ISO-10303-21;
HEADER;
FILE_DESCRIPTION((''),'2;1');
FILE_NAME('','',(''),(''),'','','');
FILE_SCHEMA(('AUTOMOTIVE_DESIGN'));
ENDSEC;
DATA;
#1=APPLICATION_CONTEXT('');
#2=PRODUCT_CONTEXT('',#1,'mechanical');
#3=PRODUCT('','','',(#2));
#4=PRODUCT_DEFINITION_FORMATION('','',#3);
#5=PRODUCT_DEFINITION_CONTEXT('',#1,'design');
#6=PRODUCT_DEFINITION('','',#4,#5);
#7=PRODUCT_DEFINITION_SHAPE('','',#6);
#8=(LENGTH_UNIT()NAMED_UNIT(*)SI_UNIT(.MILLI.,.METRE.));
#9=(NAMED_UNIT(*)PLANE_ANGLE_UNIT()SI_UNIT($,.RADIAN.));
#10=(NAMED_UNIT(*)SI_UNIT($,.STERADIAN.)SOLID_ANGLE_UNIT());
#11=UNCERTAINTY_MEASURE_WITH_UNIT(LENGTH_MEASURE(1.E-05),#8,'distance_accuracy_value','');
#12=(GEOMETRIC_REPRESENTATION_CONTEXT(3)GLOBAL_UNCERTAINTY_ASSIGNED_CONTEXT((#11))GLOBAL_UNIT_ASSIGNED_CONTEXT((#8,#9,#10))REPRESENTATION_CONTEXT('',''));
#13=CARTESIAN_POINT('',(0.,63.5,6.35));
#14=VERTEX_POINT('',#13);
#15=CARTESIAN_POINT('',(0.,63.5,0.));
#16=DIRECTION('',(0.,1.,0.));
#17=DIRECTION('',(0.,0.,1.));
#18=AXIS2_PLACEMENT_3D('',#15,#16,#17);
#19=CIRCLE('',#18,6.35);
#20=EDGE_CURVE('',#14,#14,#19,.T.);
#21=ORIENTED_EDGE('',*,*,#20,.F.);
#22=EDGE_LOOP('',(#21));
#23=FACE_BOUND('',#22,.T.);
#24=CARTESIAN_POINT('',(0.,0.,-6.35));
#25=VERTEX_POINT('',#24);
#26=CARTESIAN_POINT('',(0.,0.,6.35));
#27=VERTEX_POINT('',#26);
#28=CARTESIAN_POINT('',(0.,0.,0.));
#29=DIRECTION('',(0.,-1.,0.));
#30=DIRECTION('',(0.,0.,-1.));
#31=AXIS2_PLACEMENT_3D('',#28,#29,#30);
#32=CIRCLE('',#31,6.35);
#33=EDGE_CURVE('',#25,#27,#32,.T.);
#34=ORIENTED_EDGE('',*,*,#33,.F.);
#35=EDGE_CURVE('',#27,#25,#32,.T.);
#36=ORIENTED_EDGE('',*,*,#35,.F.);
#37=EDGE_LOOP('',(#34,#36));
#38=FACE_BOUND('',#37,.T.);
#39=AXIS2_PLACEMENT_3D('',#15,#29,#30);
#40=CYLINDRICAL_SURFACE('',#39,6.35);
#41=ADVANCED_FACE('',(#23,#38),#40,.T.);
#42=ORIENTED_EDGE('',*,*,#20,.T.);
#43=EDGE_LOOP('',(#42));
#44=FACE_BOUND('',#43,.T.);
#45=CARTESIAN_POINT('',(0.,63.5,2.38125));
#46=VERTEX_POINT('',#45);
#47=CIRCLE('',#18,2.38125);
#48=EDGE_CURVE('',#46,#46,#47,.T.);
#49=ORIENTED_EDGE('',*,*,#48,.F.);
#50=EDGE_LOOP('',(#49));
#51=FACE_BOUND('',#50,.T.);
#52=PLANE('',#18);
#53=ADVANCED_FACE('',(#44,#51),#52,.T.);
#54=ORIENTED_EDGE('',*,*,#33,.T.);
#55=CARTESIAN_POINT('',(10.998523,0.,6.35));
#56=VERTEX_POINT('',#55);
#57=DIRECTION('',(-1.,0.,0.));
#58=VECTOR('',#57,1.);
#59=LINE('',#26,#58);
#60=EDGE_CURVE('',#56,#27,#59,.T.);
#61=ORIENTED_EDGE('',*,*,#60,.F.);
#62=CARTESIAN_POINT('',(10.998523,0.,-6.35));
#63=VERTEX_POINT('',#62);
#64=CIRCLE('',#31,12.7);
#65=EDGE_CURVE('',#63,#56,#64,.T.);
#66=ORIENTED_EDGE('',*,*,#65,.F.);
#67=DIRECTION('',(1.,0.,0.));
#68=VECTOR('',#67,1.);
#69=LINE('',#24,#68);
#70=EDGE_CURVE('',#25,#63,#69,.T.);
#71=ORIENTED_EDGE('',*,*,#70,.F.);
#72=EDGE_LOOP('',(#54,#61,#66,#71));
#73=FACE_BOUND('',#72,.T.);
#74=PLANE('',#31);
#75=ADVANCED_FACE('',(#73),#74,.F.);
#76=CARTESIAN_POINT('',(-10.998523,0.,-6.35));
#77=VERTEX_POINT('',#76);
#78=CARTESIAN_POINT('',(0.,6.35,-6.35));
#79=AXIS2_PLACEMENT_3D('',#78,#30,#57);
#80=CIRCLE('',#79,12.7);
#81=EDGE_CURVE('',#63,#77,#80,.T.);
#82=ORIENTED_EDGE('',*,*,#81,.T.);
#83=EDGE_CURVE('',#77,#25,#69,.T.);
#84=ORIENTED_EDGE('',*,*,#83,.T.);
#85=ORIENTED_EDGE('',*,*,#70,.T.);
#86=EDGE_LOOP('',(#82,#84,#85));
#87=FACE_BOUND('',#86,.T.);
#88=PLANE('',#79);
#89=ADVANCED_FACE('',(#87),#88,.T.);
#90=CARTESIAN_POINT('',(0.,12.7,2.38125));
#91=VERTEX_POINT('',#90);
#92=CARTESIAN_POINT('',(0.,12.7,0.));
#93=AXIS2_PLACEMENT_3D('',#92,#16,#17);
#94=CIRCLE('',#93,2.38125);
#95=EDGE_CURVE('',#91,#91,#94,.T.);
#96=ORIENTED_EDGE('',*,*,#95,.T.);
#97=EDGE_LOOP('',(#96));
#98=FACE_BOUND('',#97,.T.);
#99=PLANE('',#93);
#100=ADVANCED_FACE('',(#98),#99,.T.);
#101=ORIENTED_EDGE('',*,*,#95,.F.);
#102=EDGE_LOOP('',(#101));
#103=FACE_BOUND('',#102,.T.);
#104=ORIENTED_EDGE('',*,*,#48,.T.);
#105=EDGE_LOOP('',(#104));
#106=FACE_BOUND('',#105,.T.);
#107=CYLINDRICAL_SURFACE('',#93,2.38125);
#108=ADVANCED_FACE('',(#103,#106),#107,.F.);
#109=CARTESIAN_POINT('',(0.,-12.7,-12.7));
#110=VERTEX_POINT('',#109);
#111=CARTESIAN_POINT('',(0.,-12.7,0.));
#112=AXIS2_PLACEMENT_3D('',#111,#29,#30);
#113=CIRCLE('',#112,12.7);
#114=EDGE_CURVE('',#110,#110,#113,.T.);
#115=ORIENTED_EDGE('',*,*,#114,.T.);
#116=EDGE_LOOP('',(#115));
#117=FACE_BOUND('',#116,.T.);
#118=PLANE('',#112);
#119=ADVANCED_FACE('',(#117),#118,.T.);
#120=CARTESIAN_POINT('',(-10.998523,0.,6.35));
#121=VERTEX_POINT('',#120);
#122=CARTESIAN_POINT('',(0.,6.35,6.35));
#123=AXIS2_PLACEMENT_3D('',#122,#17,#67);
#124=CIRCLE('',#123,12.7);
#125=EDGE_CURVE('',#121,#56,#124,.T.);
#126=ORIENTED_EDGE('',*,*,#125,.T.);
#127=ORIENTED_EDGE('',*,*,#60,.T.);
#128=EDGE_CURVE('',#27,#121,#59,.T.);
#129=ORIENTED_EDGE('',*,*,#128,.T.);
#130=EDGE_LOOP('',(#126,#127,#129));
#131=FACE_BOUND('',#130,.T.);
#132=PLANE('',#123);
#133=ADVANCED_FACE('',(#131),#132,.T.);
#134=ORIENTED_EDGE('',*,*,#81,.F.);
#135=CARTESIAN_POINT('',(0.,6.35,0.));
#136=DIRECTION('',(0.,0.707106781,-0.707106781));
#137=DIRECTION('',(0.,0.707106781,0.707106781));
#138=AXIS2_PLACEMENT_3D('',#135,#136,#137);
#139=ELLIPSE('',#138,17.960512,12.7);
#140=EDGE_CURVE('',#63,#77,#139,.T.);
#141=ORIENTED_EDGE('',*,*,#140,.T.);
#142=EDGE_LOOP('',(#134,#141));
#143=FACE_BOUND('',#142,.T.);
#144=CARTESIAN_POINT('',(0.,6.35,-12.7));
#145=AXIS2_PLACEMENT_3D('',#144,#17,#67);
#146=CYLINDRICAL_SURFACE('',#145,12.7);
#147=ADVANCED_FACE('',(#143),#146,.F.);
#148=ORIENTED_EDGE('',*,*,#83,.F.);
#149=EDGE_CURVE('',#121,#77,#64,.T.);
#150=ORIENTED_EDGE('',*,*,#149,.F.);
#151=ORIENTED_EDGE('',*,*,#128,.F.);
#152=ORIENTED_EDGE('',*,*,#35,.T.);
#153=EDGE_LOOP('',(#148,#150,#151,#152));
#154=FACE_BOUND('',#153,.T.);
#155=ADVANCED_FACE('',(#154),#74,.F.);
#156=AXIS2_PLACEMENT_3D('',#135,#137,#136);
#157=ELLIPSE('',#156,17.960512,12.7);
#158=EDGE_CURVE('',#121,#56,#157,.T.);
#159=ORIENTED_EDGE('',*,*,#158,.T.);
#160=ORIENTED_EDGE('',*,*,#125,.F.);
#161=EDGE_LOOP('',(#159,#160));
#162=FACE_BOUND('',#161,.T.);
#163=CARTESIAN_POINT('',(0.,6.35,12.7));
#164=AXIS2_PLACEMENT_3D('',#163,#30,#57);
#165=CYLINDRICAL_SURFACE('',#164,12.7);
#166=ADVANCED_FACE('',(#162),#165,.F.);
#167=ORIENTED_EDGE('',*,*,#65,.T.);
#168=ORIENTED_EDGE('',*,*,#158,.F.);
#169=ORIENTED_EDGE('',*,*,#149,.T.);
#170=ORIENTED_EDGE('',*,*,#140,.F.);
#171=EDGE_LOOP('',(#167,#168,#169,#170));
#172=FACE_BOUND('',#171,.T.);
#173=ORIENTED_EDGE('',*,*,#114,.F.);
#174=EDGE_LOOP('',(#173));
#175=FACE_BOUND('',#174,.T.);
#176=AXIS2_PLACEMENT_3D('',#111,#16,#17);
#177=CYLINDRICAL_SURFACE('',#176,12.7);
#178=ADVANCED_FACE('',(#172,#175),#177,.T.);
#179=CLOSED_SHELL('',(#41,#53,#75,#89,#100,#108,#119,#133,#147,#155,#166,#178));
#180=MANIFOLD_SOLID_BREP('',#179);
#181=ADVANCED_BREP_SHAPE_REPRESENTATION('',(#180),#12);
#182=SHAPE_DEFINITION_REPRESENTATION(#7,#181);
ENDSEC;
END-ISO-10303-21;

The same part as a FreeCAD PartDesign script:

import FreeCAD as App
import Part
import Sketcher
Q = App.Units.Quantity

doc = App.newDocument("Part")
body = doc.addObject("PartDesign::Body", "Body")

sketch1 = doc.addObject("Sketcher::SketchObject", "Sketch")
body.addObject(sketch1)
sketch1.AttachmentSupport = (doc.XZ_Plane, [""])
sketch1.MapMode = "FlatFace"
sketch1.addGeometry(Part.Circle(App.Vector(0, 0, 0), App.Vector(0, 0, 1), 6), False)
sketch1.addConstraint(Sketcher.Constraint("Coincident", 0, 3, -1, 1))
sketch1.addConstraint(Sketcher.Constraint("Diameter", 0, Q("0.5 in")))
pad1 = doc.addObject("PartDesign::Pad", "Pad")
body.addObject(pad1)
pad1.Profile = sketch1
pad1.Length = Q("2.5 in")
pad1.Reversed = True

sketch2 = doc.addObject("Sketcher::SketchObject", "Sketch001")
body.addObject(sketch2)
sketch2.AttachmentSupport = (doc.XZ_Plane, [""])
sketch2.MapMode = "FlatFace"
sketch2.addGeometry(Part.Circle(App.Vector(0, 0, 0), App.Vector(0, 0, 1), 13), False)
sketch2.addConstraint(Sketcher.Constraint("Coincident", 0, 3, -1, 1))
sketch2.addConstraint(Sketcher.Constraint("Diameter", 0, Q("1 in")))
pad2 = doc.addObject("PartDesign::Pad", "Pad001")
body.addObject(pad2)
pad2.Profile = sketch2
pad2.Length = Q("0.5 in")

sketch3 = doc.addObject("Sketcher::SketchObject", "Sketch002")
body.addObject(sketch3)
sketch3.AttachmentSupport = (doc.XY_Plane, [""])
sketch3.MapMode = "FlatFace"
sketch3.AttachmentOffset = App.Placement(App.Vector(0, 0, 0.25 * 25.4), App.Rotation())
sketch3.addGeometry(Part.Circle(App.Vector(0, 6, 0), App.Vector(0, 0, 1), 13), False)
sketch3.addConstraint(Sketcher.Constraint("PointOnObject", 0, 3, -2))
sketch3.addConstraint(Sketcher.Constraint("Diameter", 0, Q("1 in")))
sketch3.addConstraint(Sketcher.Constraint("DistanceY", -1, 1, 0, 3, Q("0.25 in")))
pocket1 = doc.addObject("PartDesign::Pocket", "Pocket")
body.addObject(pocket1)
pocket1.Profile = sketch3
pocket1.Type = "ThroughAll"
pocket1.Reversed = True

sketch4 = doc.addObject("Sketcher::SketchObject", "Sketch003")
body.addObject(sketch4)
sketch4.AttachmentSupport = (doc.XY_Plane, [""])
sketch4.MapMode = "FlatFace"
sketch4.AttachmentOffset = App.Placement(App.Vector(0, 0, -0.25 * 25.4), App.Rotation())
sketch4.addGeometry(Part.Circle(App.Vector(0, 6, 0), App.Vector(0, 0, 1), 13), False)
sketch4.addConstraint(Sketcher.Constraint("PointOnObject", 0, 3, -2))
sketch4.addConstraint(Sketcher.Constraint("Diameter", 0, Q("1 in")))
sketch4.addConstraint(Sketcher.Constraint("DistanceY", -1, 1, 0, 3, Q("0.25 in")))
pocket2 = doc.addObject("PartDesign::Pocket", "Pocket001")
body.addObject(pocket2)
pocket2.Profile = sketch4
pocket2.Type = "ThroughAll"

sketch5 = doc.addObject("Sketcher::SketchObject", "Sketch004")
body.addObject(sketch5)
sketch5.AttachmentSupport = (doc.XZ_Plane, [""])
sketch5.MapMode = "FlatFace"
sketch5.AttachmentOffset = App.Placement(App.Vector(0, 0, -2.5 * 25.4), App.Rotation())
sketch5.addGeometry(Part.Circle(App.Vector(0, 0, 0), App.Vector(0, 0, 1), 2.4), False)
sketch5.addConstraint(Sketcher.Constraint("Coincident", 0, 3, -1, 1))
sketch5.addConstraint(Sketcher.Constraint("Diameter", 0, Q("0.1875 in")))
pocket3 = doc.addObject("PartDesign::Pocket", "Pocket002")
body.addObject(pocket3)
pocket3.Profile = sketch5
pocket3.Length = Q("2 in")
pocket3.Reversed = True

doc.recompute()
